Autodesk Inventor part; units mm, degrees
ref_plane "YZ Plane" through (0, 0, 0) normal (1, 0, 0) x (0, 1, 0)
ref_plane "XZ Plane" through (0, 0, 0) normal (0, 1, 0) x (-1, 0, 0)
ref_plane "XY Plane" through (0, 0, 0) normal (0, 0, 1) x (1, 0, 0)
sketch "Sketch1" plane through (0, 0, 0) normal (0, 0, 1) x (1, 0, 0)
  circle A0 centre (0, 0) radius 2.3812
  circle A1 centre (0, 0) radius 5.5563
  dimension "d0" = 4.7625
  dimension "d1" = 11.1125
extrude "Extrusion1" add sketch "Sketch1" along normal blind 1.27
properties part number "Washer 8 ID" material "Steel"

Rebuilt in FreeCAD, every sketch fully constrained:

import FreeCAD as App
import Part
import Sketcher
from FreeCAD import Vector
Q = App.Units.Quantity

doc = App.newDocument("Part")
body = doc.addObject("PartDesign::Body", "Body")

# Sketch on XY plane
sketch1 = body.newObject("Sketcher::SketchObject", "Sketch")
sketch1.AttachmentSupport = (doc.getObject("XY_Plane"), [""])
sketch1.MapMode = "FlatFace"
sketch1.addGeometry([
    Part.Circle(Vector(0, 0, 0), Vector(0, 0, 1), 5.6),
    Part.Circle(Vector(0, 0, 0), Vector(0, 0, 1), 2.4),
], False)
sketch1.addConstraint([
    Sketcher.Constraint("Coincident", 0, 3, -1, 1),
    Sketcher.Constraint("Coincident", 1, 3, -1, 1),
    Sketcher.Constraint("Diameter", 0, Q("0.4375 in")),
    Sketcher.Constraint("Diameter", 1, Q("0.1875 in")),
])
pad1 = body.newObject("PartDesign::Pad", "Pad")
pad1.Profile = sketch1
pad1.Length = Q("0.05 in")

doc.recompute()
